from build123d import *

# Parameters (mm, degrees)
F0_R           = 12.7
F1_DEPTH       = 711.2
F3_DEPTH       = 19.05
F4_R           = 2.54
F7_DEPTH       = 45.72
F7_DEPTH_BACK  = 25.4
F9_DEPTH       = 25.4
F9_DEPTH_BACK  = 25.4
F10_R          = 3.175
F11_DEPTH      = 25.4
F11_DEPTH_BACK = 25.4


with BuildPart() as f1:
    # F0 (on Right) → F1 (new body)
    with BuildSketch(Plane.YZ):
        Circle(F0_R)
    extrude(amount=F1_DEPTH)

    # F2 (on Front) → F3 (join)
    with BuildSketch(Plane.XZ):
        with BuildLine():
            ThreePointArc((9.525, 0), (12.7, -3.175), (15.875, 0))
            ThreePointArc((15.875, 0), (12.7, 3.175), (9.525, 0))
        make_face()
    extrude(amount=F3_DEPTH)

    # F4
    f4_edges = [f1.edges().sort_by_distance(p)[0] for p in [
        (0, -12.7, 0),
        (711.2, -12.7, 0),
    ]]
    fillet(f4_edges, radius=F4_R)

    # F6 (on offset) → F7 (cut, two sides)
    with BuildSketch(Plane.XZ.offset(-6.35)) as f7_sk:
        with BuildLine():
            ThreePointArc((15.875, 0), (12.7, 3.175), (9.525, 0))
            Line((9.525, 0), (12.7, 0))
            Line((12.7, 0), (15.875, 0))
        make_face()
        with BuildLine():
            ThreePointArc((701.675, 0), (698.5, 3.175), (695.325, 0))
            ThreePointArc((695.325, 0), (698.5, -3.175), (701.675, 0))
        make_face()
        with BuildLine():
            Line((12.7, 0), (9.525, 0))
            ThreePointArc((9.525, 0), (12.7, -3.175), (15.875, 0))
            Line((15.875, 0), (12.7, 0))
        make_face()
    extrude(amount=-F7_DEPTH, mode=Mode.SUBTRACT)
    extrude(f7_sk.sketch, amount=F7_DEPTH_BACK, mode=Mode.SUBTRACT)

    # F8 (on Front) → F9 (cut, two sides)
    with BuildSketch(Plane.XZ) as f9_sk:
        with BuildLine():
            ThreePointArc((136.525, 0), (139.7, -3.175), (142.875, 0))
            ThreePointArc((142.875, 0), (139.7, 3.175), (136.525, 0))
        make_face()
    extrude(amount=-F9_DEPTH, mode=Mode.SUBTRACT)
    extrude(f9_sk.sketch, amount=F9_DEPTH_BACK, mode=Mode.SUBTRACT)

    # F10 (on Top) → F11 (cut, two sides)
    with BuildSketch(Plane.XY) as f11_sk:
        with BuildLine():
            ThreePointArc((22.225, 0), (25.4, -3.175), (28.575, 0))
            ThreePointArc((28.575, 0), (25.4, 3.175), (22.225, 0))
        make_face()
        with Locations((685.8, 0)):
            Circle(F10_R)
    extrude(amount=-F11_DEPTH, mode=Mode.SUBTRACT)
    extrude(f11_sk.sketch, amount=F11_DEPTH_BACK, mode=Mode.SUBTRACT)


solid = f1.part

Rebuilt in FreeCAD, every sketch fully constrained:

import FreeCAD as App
import Part
import Sketcher
Q = App.Units.Quantity


def edges_at(feature, points):
    """Names of the edges that pass closest to the given points."""
    edges = feature.Shape.Edges
    near = lambda p: min(range(len(edges)), key=lambda i: edges[i].distToShape(Part.Vertex(*p))[0])
    return sorted({f"Edge{near(p) + 1}" for p in points})

doc = App.newDocument("Part")
body = doc.addObject("PartDesign::Body", "Body")

sketch1 = doc.addObject("Sketcher::SketchObject", "Sketch")
body.addObject(sketch1)
sketch1.AttachmentSupport = (doc.YZ_Plane, [""])
sketch1.MapMode = "FlatFace"
sketch1.addGeometry(Part.Circle(App.Vector(0, 0, 0), App.Vector(0, 0, 1), 13), False)
sketch1.addConstraint(Sketcher.Constraint("Coincident", 0, 3, -1, 1))
sketch1.addConstraint(Sketcher.Constraint("Diameter", 0, Q("1 in")))
pad1 = doc.addObject("PartDesign::Pad", "Pad")
body.addObject(pad1)
pad1.Profile = sketch1
pad1.Length = Q("28 in")

sketch2 = doc.addObject("Sketcher::SketchObject", "Sketch001")
body.addObject(sketch2)
sketch2.AttachmentSupport = (doc.XZ_Plane, [""])
sketch2.MapMode = "FlatFace"
sketch2.addGeometry(Part.Circle(App.Vector(12.7, 0, 0), App.Vector(0, 0, 1), 3.2), False)
sketch2.addConstraint(Sketcher.Constraint("PointOnObject", 0, 3, -1))
sketch2.addConstraint(Sketcher.Constraint("Diameter", 0, Q("0.25 in")))
sketch2.addConstraint(Sketcher.Constraint("DistanceX", -1, 1, 0, 3, Q("0.5 in")))
pad2 = doc.addObject("PartDesign::Pad", "Pad001")
body.addObject(pad2)
pad2.Profile = sketch2
pad2.Length = Q("0.75 in")
doc.recompute()

fillet = doc.addObject("PartDesign::Fillet", "Fillet")
body.addObject(fillet)
fillet.Base = (pad2, edges_at(pad2, [(0, -12.7, 0), (711.2, -12.7, 0)]))
fillet.Radius = Q("0.1 in")

sketch3 = doc.addObject("Sketcher::SketchObject", "Sketch002")
body.addObject(sketch3)
sketch3.AttachmentSupport = (doc.XZ_Plane, [""])
sketch3.MapMode = "FlatFace"
sketch3.AttachmentOffset = App.Placement(App.Vector(0, 0, -0.25 * 25.4), App.Rotation())
sketch3.addGeometry(Part.Circle(App.Vector(12.7, 0, 0), App.Vector(0, 0, 1), 3.2), False)
sketch3.addGeometry(Part.Circle(App.Vector(698.5, 0, 0), App.Vector(0, 0, 1), 3.2), False)
sketch3.addConstraint(Sketcher.Constraint("Equal", 0, 1))
sketch3.addConstraint(Sketcher.Constraint("PointOnObject", 0, 3, -1))
sketch3.addConstraint(Sketcher.Constraint("PointOnObject", 1, 3, -1))
sketch3.addConstraint(Sketcher.Constraint("Diameter", 0, Q("0.25 in")))
sketch3.addConstraint(Sketcher.Constraint("DistanceX", 0, 3, 1, 3, Q("27 in")))
sketch3.addConstraint(Sketcher.Constraint("DistanceX", -1, 1, 0, 3, Q("0.5 in")))
pocket1 = doc.addObject("PartDesign::Pocket", "Pocket")
body.addObject(pocket1)
pocket1.Profile = sketch3
pocket1.Type = "ThroughAll"
pocket1.Midplane = True

sketch4 = doc.addObject("Sketcher::SketchObject", "Sketch003")
body.addObject(sketch4)
sketch4.AttachmentSupport = (doc.XZ_Plane, [""])
sketch4.MapMode = "FlatFace"
sketch4.addGeometry(Part.Circle(App.Vector(139.7, 0, 0), App.Vector(0, 0, 1), 3.2), False)
sketch4.addConstraint(Sketcher.Constraint("PointOnObject", 0, 3, -1))
sketch4.addConstraint(Sketcher.Constraint("Diameter", 0, Q("0.25 in")))
sketch4.addConstraint(Sketcher.Constraint("DistanceX", -1, 1, 0, 3, Q("5.5 in")))
pocket2 = doc.addObject("PartDesign::Pocket", "Pocket001")
body.addObject(pocket2)
pocket2.Profile = sketch4
pocket2.Type = "ThroughAll"
pocket2.Midplane = True

sketch5 = doc.addObject("Sketcher::SketchObject", "Sketch004")
body.addObject(sketch5)
sketch5.AttachmentSupport = (doc.XY_Plane, [""])
sketch5.MapMode = "FlatFace"
sketch5.addGeometry(Part.Circle(App.Vector(25.4, 0, 0), App.Vector(0, 0, 1), 3.2), False)
sketch5.addGeometry(Part.Circle(App.Vector(685.8, 0, 0), App.Vector(0, 0, 1), 3.2), False)
sketch5.addConstraint(Sketcher.Constraint("Equal", 0, 1))
sketch5.addConstraint(Sketcher.Constraint("PointOnObject", 0, 3, -1))
sketch5.addConstraint(Sketcher.Constraint("PointOnObject", 1, 3, -1))
sketch5.addConstraint(Sketcher.Constraint("Diameter", 0, Q("0.25 in")))
sketch5.addConstraint(Sketcher.Constraint("DistanceX", -1, 1, 0, 3, Q("1 in")))
sketch5.addConstraint(Sketcher.Constraint("DistanceX", -1, 1, 1, 3, Q("27 in")))
pocket3 = doc.addObject("PartDesign::Pocket", "Pocket002")
body.addObject(pocket3)
pocket3.Profile = sketch5
pocket3.Type = "ThroughAll"
pocket3.Midplane = True

doc.recompute()
